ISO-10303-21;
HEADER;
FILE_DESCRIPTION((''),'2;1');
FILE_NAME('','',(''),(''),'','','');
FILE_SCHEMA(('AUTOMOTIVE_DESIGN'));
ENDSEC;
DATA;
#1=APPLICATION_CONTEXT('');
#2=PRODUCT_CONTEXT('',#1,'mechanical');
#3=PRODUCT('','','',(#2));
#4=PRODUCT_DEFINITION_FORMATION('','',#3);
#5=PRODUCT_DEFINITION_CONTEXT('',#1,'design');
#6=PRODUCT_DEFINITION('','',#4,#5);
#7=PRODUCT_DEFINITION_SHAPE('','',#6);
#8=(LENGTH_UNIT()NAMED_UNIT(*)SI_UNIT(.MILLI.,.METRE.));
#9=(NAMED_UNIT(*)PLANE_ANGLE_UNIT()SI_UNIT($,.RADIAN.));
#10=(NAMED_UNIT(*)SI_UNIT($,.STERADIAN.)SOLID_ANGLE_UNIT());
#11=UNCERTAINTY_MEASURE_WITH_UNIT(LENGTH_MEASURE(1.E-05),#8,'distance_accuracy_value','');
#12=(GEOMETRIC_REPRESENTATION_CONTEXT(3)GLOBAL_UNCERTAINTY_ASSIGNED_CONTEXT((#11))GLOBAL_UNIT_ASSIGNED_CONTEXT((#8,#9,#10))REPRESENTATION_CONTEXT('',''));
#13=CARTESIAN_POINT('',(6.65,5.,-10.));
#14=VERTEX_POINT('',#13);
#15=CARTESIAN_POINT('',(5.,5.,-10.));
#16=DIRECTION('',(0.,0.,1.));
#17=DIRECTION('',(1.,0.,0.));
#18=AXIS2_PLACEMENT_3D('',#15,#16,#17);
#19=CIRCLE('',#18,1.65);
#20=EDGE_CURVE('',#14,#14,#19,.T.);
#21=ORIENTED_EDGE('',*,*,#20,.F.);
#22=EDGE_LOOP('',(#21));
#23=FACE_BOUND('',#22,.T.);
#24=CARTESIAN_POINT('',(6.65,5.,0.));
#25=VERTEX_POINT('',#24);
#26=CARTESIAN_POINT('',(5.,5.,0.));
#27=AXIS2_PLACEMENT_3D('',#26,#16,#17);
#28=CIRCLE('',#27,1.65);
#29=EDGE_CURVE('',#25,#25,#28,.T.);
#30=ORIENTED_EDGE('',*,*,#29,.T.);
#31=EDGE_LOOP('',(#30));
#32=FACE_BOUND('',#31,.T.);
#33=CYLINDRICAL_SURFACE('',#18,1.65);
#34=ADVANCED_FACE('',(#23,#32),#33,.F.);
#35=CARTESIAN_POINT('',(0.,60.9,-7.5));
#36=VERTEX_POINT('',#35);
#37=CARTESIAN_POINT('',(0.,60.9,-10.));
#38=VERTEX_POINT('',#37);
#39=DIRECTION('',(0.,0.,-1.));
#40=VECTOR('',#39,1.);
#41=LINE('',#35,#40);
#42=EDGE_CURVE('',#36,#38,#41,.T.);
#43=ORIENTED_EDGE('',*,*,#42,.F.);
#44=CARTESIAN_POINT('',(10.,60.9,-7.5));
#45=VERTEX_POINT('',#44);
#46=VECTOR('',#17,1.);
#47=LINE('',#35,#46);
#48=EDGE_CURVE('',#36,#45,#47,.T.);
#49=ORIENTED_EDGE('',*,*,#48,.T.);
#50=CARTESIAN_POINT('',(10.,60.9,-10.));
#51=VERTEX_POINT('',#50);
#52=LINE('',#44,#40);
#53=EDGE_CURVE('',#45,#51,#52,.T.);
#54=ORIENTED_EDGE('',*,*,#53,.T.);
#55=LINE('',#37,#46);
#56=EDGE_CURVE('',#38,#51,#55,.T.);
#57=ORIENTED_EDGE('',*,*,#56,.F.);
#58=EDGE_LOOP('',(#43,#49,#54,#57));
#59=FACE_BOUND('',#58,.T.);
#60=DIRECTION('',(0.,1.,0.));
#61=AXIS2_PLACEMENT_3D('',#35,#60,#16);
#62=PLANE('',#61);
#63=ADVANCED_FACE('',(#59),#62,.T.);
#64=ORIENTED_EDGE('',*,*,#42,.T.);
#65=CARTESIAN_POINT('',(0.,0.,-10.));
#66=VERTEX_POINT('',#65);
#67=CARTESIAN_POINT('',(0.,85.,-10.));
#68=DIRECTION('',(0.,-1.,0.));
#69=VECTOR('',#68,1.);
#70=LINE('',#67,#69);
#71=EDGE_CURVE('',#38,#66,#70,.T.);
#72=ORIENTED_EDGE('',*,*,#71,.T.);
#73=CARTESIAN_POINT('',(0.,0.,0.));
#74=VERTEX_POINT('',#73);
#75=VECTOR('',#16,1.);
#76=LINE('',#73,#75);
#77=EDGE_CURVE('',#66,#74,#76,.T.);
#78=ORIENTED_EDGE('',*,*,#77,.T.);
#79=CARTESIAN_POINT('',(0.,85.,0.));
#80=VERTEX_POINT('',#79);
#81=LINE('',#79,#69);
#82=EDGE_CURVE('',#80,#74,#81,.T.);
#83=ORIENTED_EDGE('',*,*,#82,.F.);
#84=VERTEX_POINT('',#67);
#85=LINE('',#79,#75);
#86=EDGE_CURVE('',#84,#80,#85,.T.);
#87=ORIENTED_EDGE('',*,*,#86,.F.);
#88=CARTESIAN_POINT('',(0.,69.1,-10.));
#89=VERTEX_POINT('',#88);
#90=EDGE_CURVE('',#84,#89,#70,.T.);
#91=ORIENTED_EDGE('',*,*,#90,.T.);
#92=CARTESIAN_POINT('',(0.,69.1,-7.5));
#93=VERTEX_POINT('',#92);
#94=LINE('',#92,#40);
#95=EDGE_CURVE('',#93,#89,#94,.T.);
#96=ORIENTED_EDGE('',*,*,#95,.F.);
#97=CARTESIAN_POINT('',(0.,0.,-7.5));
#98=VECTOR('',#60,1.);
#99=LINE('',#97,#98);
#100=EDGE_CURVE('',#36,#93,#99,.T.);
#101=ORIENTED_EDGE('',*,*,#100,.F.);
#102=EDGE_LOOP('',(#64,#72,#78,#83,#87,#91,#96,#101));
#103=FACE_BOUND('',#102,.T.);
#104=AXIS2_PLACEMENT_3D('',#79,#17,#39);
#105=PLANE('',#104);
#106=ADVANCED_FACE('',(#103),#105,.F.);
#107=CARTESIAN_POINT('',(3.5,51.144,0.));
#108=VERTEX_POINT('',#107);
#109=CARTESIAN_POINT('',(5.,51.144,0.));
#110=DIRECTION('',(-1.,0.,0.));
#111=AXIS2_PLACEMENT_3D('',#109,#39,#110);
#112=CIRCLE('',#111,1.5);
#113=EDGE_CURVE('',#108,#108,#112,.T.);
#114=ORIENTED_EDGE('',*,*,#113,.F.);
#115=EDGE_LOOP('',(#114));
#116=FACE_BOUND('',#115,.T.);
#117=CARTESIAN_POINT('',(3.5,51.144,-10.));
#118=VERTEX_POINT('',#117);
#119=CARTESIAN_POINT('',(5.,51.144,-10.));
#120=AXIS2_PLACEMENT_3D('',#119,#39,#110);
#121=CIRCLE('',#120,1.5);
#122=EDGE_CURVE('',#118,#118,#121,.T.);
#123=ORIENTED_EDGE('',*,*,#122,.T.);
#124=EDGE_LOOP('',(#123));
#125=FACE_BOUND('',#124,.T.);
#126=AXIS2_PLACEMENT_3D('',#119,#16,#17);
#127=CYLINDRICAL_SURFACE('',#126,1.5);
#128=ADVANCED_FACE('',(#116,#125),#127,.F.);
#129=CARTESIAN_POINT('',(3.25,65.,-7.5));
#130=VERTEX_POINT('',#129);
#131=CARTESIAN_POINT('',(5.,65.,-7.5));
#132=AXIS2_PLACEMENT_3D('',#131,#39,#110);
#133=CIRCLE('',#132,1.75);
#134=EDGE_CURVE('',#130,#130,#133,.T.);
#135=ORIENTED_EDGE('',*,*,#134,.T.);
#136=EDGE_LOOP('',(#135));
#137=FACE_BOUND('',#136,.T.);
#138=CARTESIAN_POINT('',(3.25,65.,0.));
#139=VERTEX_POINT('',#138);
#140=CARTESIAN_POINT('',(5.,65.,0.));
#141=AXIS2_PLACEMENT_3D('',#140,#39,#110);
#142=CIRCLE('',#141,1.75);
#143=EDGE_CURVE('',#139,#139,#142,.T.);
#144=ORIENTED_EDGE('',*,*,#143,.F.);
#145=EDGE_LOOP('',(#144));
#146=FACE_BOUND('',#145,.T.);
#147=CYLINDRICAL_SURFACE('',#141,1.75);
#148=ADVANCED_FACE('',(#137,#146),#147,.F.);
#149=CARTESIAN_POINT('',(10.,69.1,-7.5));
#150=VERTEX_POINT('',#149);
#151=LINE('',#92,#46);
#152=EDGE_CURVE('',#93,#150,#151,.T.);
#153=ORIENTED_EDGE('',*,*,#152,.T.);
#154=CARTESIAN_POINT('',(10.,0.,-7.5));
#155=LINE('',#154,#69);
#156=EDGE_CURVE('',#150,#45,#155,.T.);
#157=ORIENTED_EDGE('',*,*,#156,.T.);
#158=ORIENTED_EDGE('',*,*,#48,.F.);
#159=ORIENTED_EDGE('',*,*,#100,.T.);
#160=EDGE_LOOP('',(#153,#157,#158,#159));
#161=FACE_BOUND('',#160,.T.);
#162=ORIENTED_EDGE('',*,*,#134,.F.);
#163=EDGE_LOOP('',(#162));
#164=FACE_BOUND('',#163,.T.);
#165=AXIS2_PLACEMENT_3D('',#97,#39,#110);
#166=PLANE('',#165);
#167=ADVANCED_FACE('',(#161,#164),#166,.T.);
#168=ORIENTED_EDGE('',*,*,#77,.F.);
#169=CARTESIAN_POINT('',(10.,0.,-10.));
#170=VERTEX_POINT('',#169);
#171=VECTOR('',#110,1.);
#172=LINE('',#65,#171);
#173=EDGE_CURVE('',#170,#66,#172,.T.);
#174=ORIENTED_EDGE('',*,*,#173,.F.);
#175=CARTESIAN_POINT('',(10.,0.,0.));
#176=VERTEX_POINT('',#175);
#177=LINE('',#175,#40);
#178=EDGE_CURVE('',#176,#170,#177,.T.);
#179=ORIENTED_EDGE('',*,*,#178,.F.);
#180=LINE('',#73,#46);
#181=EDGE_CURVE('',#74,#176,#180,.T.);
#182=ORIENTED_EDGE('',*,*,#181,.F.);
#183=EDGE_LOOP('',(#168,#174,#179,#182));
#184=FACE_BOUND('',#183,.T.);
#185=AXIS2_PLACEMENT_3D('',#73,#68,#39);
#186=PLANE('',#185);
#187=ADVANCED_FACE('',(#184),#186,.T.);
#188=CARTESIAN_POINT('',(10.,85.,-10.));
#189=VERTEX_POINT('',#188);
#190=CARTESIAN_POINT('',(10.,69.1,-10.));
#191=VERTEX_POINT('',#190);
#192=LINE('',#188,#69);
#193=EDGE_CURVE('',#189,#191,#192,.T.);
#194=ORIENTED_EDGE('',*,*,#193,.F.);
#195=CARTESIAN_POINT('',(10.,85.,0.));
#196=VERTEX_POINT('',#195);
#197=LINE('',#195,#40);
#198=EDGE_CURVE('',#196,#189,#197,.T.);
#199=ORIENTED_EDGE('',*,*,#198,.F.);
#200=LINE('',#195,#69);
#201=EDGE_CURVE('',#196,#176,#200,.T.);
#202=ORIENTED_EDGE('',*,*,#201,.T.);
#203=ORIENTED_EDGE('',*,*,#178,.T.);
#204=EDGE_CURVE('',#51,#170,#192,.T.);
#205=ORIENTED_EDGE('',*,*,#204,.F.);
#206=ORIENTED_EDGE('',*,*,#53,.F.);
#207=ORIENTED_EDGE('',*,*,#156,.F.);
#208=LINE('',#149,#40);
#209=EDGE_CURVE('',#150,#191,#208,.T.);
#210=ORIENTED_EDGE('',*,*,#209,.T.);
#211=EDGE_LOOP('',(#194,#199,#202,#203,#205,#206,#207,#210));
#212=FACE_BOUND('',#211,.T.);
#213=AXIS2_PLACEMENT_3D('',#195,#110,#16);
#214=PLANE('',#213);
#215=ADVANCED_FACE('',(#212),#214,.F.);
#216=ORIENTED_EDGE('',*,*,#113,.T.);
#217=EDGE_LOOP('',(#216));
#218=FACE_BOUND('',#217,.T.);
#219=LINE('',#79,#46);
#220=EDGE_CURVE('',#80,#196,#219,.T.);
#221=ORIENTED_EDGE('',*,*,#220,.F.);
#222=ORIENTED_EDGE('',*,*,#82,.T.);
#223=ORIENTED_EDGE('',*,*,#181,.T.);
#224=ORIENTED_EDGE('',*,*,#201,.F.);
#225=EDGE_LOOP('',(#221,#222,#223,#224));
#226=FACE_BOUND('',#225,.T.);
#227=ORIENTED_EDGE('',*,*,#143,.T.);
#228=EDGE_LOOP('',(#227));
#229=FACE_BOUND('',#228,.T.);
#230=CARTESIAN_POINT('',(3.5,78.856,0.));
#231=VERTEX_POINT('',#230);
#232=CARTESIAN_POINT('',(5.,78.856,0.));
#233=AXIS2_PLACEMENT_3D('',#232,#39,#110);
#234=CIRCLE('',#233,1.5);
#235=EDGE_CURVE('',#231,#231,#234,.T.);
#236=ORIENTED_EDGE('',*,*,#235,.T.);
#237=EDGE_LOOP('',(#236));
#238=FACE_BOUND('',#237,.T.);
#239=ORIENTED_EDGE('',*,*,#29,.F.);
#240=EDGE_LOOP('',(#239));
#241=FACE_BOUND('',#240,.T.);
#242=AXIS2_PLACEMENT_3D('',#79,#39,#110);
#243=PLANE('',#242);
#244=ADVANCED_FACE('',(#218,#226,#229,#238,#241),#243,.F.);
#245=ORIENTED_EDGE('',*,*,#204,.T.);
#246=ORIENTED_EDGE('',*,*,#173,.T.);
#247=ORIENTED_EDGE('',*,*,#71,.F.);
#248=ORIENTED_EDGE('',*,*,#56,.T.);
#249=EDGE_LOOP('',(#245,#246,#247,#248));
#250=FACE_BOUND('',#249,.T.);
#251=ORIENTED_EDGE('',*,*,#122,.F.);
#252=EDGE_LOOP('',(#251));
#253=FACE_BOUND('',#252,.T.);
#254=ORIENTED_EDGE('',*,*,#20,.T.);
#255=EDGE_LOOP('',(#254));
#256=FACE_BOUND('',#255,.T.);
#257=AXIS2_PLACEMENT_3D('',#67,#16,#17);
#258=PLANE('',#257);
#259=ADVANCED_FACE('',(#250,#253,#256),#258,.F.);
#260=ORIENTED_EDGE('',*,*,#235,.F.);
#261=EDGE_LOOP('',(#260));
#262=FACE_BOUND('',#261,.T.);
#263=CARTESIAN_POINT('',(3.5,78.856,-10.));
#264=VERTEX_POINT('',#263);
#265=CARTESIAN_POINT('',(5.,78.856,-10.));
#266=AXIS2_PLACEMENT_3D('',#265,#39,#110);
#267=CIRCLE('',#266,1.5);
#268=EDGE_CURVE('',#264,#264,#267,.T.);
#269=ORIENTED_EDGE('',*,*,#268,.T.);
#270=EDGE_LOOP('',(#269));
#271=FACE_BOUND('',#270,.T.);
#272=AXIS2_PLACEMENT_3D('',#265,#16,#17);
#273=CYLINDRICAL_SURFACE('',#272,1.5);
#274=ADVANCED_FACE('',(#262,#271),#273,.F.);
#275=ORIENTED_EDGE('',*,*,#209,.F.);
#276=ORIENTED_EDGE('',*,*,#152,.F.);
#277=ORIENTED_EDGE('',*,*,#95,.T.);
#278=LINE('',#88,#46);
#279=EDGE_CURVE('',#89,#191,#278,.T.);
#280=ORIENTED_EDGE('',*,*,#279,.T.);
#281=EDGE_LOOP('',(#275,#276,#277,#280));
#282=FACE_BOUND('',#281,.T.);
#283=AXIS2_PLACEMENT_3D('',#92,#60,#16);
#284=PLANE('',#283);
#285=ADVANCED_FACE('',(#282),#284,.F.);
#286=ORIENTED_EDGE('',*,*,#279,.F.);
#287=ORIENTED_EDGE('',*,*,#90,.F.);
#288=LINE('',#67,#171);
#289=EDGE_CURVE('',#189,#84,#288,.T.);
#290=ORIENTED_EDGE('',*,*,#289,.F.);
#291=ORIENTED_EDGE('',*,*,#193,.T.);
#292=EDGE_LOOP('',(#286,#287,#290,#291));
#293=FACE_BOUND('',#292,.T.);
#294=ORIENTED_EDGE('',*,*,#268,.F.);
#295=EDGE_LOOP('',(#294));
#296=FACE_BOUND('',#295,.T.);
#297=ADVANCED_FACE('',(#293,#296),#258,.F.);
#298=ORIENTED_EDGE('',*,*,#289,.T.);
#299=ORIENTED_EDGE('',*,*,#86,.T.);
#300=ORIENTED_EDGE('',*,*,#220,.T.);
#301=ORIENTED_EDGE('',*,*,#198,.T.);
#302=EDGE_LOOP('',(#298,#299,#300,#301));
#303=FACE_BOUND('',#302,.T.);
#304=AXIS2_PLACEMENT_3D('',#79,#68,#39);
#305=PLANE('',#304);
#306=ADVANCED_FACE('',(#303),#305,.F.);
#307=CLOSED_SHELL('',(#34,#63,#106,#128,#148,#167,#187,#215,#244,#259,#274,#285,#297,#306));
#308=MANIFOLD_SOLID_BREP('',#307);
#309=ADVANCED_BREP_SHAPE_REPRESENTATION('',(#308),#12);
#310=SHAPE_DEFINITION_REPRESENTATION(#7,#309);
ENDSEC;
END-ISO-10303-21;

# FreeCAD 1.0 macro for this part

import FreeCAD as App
import Part
import Sketcher

V = App.Vector

doc = App.newDocument("Part")
params = doc.addObject("Spreadsheet::Sheet", "Params")
for row, (alias, value) in enumerate([
    ("sketch1_width", "10 mm"),
    ("pad1_length", "85 mm"),
    ("sketch2_width", "10 mm"),
    ("sketch2_height", "8.2 mm"),
    ("pocket1_length", "2.5 mm"),
    ("sketch3_diameter", "3.5 mm"),
    ("sketch4_diameter", "3 mm"),
    ("sketch5_diameter", "3.3 mm"),
], start=1):
    params.set(f"A{row}", alias)
    params.set(f"B{row}", "=" + value)
    params.setAlias(f"B{row}", alias)

body = doc.addObject("PartDesign::Body", "Body")

sketch1 = body.newObject("Sketcher::SketchObject", "Sketch")
sketch1.AttachmentSupport = (doc.getObject("XZ_Plane"), [""])
sketch1.MapMode = "FlatFace"
sketch1.addGeometry([
    Part.LineSegment(V(0, -10, 0), V(0, 0, 0)),
    Part.LineSegment(V(0, 0, 0), V(10, 0, 0)),
    Part.LineSegment(V(10, 0, 0), V(10, -10, 0)),
    Part.LineSegment(V(10, -10, 0), V(0, -10, 0)),
], False)
sketch1.addConstraint([
    Sketcher.Constraint("Coincident", 0, 2, 1, 1),
    Sketcher.Constraint("Coincident", 1, 2, 2, 1),
    Sketcher.Constraint("Coincident", 2, 2, 3, 1),
    Sketcher.Constraint("Coincident", 3, 2, 0, 1),
    Sketcher.Constraint("Vertical", 0),
    Sketcher.Constraint("Horizontal", 1),
    Sketcher.Constraint("Vertical", 2),
    Sketcher.Constraint("Horizontal", 3),
    Sketcher.Constraint("Coincident", 0, 2, -1, 1),
    Sketcher.Constraint("Equal", 3, 0),
    Sketcher.Constraint("DistanceX", 1, 1, 1, 2, 10.0),
])
sketch1.setExpression("Constraints[10]", "Params.sketch1_width")
pad1 = body.newObject("PartDesign::Pad", "Pad")
pad1.Profile = sketch1
pad1.setExpression("Length", "Params.pad1_length")
pad1.Reversed = True

sketch2 = body.newObject("Sketcher::SketchObject", "Sketch001")
sketch2.AttachmentSupport = (doc.getObject("XY_Plane"), [""])
sketch2.MapMode = "FlatFace"
sketch2.AttachmentOffset = App.Placement(V(0, 0, -10), App.Rotation())
sketch2.addGeometry([
    Part.LineSegment(V(10, 69.1, 0), V(10, 60.9, 0)),
    Part.LineSegment(V(10, 60.9, 0), V(0, 60.9, 0)),
    Part.LineSegment(V(0, 60.9, 0), V(0, 69.1, 0)),
    Part.LineSegment(V(0, 69.1, 0), V(10, 69.1, 0)),
], False)
sketch2.addConstraint([
    Sketcher.Constraint("Coincident", 0, 2, 1, 1),
    Sketcher.Constraint("Coincident", 1, 2, 2, 1),
    Sketcher.Constraint("Coincident", 2, 2, 3, 1),
    Sketcher.Constraint("Coincident", 3, 2, 0, 1),
    Sketcher.Constraint("Vertical", 0),
    Sketcher.Constraint("Horizontal", 1),
    Sketcher.Constraint("Vertical", 2),
    Sketcher.Constraint("Horizontal", 3),
    Sketcher.Constraint("PointOnObject", 1, 2, -2),
    Sketcher.Constraint("DistanceX", 1, 2, 1, 1, 10.0),
    Sketcher.Constraint("DistanceY", 0, 2, 0, 1, 8.2),
    Sketcher.Constraint("DistanceY", -1, 1, 0, 2, 60.9),
])
sketch2.setExpression("Constraints[9]", "Params.sketch2_width")
sketch2.setExpression("Constraints[10]", "Params.sketch2_height")
pocket1 = body.newObject("PartDesign::Pocket", "Pocket")
pocket1.Profile = sketch2
pocket1.setExpression("Length", "Params.pocket1_length")
pocket1.Reversed = True

sketch3 = body.newObject("Sketcher::SketchObject", "Sketch002")
sketch3.AttachmentSupport = (doc.getObject("XY_Plane"), [""])
sketch3.MapMode = "FlatFace"
sketch3.AttachmentOffset = App.Placement(V(0, 0, -7.5), App.Rotation())
sketch3.addGeometry(Part.Circle(V(5, 65, 0), V(0, 0, 1), 1.75), False)
sketch3.addConstraint([
    Sketcher.Constraint("Diameter", 0, 3.5),
    Sketcher.Constraint("DistanceX", -1, 1, 0, 3, 5.0),
    Sketcher.Constraint("DistanceY", -1, 1, 0, 3, 65.0),
])
sketch3.setExpression("Constraints[0]", "Params.sketch3_diameter")
pocket2 = body.newObject("PartDesign::Pocket", "Pocket001")
pocket2.Profile = sketch3
pocket2.Type = "ThroughAll"
pocket2.Reversed = True

sketch4 = body.newObject("Sketcher::SketchObject", "Sketch003")
sketch4.AttachmentSupport = (doc.getObject("XY_Plane"), [""])
sketch4.MapMode = "FlatFace"
sketch4.AttachmentOffset = App.Placement(V(0, 0, -7.5), App.Rotation())
sketch4.addGeometry([
    Part.Circle(V(5, 78.856, 0), V(0, 0, 1), 1.5),
    Part.Circle(V(5, 51.144, 0), V(0, 0, 1), 1.5),
], False)
sketch4.addConstraint([
    Sketcher.Constraint("Equal", 0, 1),
    Sketcher.Constraint("Vertical", 0, 3, 1, 3),
    Sketcher.Constraint("Diameter", 0, 3.0),
    Sketcher.Constraint("DistanceX", -1, 1, 0, 3, 5.0),
    Sketcher.Constraint("DistanceY", -1, 1, 0, 3, 78.856),
    Sketcher.Constraint("DistanceY", -1, 1, 1, 3, 51.144),
])
sketch4.setExpression("Constraints[2]", "Params.sketch4_diameter")
pocket3 = body.newObject("PartDesign::Pocket", "Pocket002")
pocket3.Profile = sketch4
pocket3.Type = "ThroughAll"
pocket3.Midplane = True

sketch5 = body.newObject("Sketcher::SketchObject", "Sketch004")
sketch5.AttachmentSupport = (doc.getObject("XY_Plane"), [""])
sketch5.MapMode = "FlatFace"
sketch5.addGeometry(Part.Circle(V(5, 5, 0), V(0, 0, 1), 1.65), False)
sketch5.addConstraint([
    Sketcher.Constraint("Diameter", 0, 3.3),
    Sketcher.Constraint("DistanceX", -1, 1, 0, 3, 5.0),
    Sketcher.Constraint("DistanceY", -1, 1, 0, 3, 5.0),
])
sketch5.setExpression("Constraints[0]", "Params.sketch5_diameter")
pocket4 = body.newObject("PartDesign::Pocket", "Pocket003")
pocket4.Profile = sketch5
pocket4.Type = "ThroughAll"

doc.recompute()
